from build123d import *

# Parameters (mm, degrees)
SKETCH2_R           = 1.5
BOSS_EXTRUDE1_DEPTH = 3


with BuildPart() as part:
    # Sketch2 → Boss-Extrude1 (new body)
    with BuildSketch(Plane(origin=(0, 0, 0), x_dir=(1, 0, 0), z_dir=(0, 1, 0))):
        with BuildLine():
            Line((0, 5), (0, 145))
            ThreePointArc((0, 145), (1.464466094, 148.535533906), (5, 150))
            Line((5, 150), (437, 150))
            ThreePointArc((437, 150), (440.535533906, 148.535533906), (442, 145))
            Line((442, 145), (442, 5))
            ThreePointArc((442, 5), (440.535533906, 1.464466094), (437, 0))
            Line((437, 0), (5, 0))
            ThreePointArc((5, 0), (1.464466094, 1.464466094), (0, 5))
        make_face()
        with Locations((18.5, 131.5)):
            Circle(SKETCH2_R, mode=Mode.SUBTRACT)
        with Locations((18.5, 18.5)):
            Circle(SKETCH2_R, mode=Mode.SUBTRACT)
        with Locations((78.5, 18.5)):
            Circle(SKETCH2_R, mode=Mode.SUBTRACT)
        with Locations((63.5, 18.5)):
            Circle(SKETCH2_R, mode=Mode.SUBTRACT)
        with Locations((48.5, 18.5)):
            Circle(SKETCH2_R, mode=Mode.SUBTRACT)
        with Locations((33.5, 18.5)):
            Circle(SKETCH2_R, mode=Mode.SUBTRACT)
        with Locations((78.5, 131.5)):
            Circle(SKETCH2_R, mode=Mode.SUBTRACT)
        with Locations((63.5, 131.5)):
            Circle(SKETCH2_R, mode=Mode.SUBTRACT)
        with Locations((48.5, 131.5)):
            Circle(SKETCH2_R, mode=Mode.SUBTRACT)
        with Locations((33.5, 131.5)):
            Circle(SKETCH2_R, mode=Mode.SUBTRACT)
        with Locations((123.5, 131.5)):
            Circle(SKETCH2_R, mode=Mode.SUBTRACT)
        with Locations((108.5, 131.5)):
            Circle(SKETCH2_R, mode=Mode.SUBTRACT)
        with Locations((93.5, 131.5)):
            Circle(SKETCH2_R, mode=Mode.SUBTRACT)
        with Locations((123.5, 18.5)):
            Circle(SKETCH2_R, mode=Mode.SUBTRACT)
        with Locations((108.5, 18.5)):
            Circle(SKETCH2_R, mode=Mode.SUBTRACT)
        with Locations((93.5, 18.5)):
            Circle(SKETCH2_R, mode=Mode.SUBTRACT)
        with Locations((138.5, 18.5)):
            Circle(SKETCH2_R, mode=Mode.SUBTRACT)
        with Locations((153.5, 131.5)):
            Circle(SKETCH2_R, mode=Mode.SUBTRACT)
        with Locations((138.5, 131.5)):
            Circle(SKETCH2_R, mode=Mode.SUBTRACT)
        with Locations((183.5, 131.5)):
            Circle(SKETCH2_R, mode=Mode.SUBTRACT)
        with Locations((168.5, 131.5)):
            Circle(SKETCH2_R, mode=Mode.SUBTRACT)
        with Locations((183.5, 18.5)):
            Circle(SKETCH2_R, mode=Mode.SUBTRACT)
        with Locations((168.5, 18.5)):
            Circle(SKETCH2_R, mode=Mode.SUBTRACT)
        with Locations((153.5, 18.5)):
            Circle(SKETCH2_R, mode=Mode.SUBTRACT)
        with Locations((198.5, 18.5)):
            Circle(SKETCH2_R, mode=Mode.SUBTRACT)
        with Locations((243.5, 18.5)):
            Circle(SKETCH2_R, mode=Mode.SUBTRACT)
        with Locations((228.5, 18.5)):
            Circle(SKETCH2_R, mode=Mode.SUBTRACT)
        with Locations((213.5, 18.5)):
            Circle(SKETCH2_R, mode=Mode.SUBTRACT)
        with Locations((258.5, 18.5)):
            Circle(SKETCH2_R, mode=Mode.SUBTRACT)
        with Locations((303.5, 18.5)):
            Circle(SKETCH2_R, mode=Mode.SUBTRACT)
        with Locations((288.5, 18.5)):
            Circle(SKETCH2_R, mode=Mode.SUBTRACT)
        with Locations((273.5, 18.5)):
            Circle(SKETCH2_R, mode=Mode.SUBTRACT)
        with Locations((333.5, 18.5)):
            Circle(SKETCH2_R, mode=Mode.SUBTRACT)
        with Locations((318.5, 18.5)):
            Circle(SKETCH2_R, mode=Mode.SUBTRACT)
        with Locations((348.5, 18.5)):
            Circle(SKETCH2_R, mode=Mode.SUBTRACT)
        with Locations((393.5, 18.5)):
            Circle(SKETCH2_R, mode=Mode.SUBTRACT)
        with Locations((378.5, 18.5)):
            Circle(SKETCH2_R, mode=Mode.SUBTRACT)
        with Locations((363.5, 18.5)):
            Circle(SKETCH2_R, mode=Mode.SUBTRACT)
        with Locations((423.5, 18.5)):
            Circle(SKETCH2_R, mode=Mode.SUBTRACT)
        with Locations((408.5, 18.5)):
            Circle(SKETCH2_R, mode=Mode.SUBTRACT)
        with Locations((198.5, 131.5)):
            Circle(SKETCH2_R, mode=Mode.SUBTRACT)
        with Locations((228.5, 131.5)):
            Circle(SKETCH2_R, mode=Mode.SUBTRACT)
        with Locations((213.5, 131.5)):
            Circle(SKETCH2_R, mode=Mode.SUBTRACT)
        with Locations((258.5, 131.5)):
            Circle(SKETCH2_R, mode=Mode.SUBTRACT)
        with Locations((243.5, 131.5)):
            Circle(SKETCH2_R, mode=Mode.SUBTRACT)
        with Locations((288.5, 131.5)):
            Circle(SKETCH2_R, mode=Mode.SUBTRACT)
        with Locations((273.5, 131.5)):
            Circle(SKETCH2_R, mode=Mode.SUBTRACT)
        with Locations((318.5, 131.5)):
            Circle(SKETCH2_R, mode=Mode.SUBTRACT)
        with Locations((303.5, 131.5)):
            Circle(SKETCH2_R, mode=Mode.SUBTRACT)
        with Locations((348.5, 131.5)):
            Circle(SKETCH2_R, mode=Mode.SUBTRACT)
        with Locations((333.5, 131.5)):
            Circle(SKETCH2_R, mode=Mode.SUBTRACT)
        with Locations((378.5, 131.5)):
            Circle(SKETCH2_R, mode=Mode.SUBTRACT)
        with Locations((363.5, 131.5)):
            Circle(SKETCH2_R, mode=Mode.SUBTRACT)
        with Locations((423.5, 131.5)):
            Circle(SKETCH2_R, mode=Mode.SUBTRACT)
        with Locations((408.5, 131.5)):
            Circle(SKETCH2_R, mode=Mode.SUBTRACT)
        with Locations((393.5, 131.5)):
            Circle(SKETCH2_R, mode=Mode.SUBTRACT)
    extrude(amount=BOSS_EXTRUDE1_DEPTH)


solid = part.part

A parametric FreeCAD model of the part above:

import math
import FreeCAD as App
import Part
import Sketcher

V = App.Vector
Q = App.Units.Quantity

doc = App.newDocument("Part")
body = doc.addObject("PartDesign::Body", "Body")

sketch1 = body.newObject("Sketcher::SketchObject", "Sketch")
sketch1.AttachmentSupport = (doc.getObject("XZ_Plane"), [""])
sketch1.MapMode = "FlatFace"
sketch1.addGeometry([
    Part.LineSegment(V(0, -145, 0), V(0, -5, 0)),
    Part.ArcOfCircle(Part.Circle(V(5, -5, 0), V(0, 0, 1), 5), math.radians(90), math.radians(180)),
    Part.LineSegment(V(5, 0, 0), V(437, 0, 0)),
    Part.ArcOfCircle(Part.Circle(V(437, -5, 0), V(0, 0, 1), 5), math.radians(0), math.radians(90)),
    Part.LineSegment(V(442, -5, 0), V(442, -145, 0)),
    Part.ArcOfCircle(Part.Circle(V(437, -145, 0), V(0, 0, 1), 5), math.radians(-90), math.radians(0)),
    Part.LineSegment(V(437, -150, 0), V(5, -150, 0)),
    Part.ArcOfCircle(Part.Circle(V(5, -145, 0), V(0, 0, 1), 5), math.radians(180), math.radians(270)),
    Part.Circle(V(423.5, -18.5, 0), V(0, 0, 1), 1.5),
    Part.Circle(V(408.5, -18.5, 0), V(0, 0, 1), 1.5),
    Part.Circle(V(393.5, -18.5, 0), V(0, 0, 1), 1.5),
    Part.Circle(V(378.5, -18.5, 0), V(0, 0, 1), 1.5),
    Part.Circle(V(363.5, -18.5, 0), V(0, 0, 1), 1.5),
    Part.Circle(V(348.5, -18.5, 0), V(0, 0, 1), 1.5),
    Part.Circle(V(333.5, -18.5, 0), V(0, 0, 1), 1.5),
    Part.Circle(V(318.5, -18.5, 0), V(0, 0, 1), 1.5),
    Part.Circle(V(303.5, -18.5, 0), V(0, 0, 1), 1.5),
    Part.Circle(V(288.5, -18.5, 0), V(0, 0, 1), 1.5),
    Part.Circle(V(273.5, -18.5, 0), V(0, 0, 1), 1.5),
    Part.Circle(V(258.5, -18.5, 0), V(0, 0, 1), 1.5),
    Part.Circle(V(243.5, -18.5, 0), V(0, 0, 1), 1.5),
    Part.Circle(V(228.5, -18.5, 0), V(0, 0, 1), 1.5),
    Part.Circle(V(213.5, -18.5, 0), V(0, 0, 1), 1.5),
    Part.Circle(V(198.5, -18.5, 0), V(0, 0, 1), 1.5),
    Part.Circle(V(183.5, -18.5, 0), V(0, 0, 1), 1.5),
    Part.Circle(V(168.5, -18.5, 0), V(0, 0, 1), 1.5),
    Part.Circle(V(153.5, -18.5, 0), V(0, 0, 1), 1.5),
    Part.Circle(V(138.5, -18.5, 0), V(0, 0, 1), 1.5),
    Part.Circle(V(123.5, -18.5, 0), V(0, 0, 1), 1.5),
    Part.Circle(V(108.5, -18.5, 0), V(0, 0, 1), 1.5),
    Part.Circle(V(93.5, -18.5, 0), V(0, 0, 1), 1.5),
    Part.Circle(V(78.5, -18.5, 0), V(0, 0, 1), 1.5),
    Part.Circle(V(63.5, -18.5, 0), V(0, 0, 1), 1.5),
    Part.Circle(V(48.5, -18.5, 0), V(0, 0, 1), 1.5),
    Part.Circle(V(33.5, -18.5, 0), V(0, 0, 1), 1.5),
    Part.Circle(V(18.5, -18.5, 0), V(0, 0, 1), 1.5),
    Part.Circle(V(423.5, -131.5, 0), V(0, 0, 1), 1.5),
    Part.Circle(V(408.5, -131.5, 0), V(0, 0, 1), 1.5),
    Part.Circle(V(393.5, -131.5, 0), V(0, 0, 1), 1.5),
    Part.Circle(V(378.5, -131.5, 0), V(0, 0, 1), 1.5),
    Part.Circle(V(363.5, -131.5, 0), V(0, 0, 1), 1.5),
    Part.Circle(V(348.5, -131.5, 0), V(0, 0, 1), 1.5),
    Part.Circle(V(333.5, -131.5, 0), V(0, 0, 1), 1.5),
    Part.Circle(V(318.5, -131.5, 0), V(0, 0, 1), 1.5),
    Part.Circle(V(303.5, -131.5, 0), V(0, 0, 1), 1.5),
    Part.Circle(V(288.5, -131.5, 0), V(0, 0, 1), 1.5),
    Part.Circle(V(273.5, -131.5, 0), V(0, 0, 1), 1.5),
    Part.Circle(V(258.5, -131.5, 0), V(0, 0, 1), 1.5),
    Part.Circle(V(243.5, -131.5, 0), V(0, 0, 1), 1.5),
    Part.Circle(V(228.5, -131.5, 0), V(0, 0, 1), 1.5),
    Part.Circle(V(213.5, -131.5, 0), V(0, 0, 1), 1.5),
    Part.Circle(V(198.5, -131.5, 0), V(0, 0, 1), 1.5),
    Part.Circle(V(183.5, -131.5, 0), V(0, 0, 1), 1.5),
    Part.Circle(V(168.5, -131.5, 0), V(0, 0, 1), 1.5),
    Part.Circle(V(153.5, -131.5, 0), V(0, 0, 1), 1.5),
    Part.Circle(V(138.5, -131.5, 0), V(0, 0, 1), 1.5),
    Part.Circle(V(123.5, -131.5, 0), V(0, 0, 1), 1.5),
    Part.Circle(V(108.5, -131.5, 0), V(0, 0, 1), 1.5),
    Part.Circle(V(93.5, -131.5, 0), V(0, 0, 1), 1.5),
    Part.Circle(V(78.5, -131.5, 0), V(0, 0, 1), 1.5),
    Part.Circle(V(63.5, -131.5, 0), V(0, 0, 1), 1.5),
    Part.Circle(V(48.5, -131.5, 0), V(0, 0, 1), 1.5),
    Part.Circle(V(33.5, -131.5, 0), V(0, 0, 1), 1.5),
    Part.Circle(V(18.5, -131.5, 0), V(0, 0, 1), 1.5),
], False)
sketch1.addConstraint([
    Sketcher.Constraint("Tangent", 0, 2, 1, 2),
    Sketcher.Constraint("Tangent", 1, 1, 2, 1),
    Sketcher.Constraint("Tangent", 2, 2, 3, 2),
    Sketcher.Constraint("Tangent", 3, 1, 4, 1),
    Sketcher.Constraint("Tangent", 4, 2, 5, 2),
    Sketcher.Constraint("Tangent", 5, 1, 6, 1),
    Sketcher.Constraint("Tangent", 6, 2, 7, 2),
    Sketcher.Constraint("Tangent", 7, 1, 0, 1),
    Sketcher.Constraint("Vertical", 0),
    Sketcher.Constraint("Horizontal", 2),
    Sketcher.Constraint("Vertical", 4),
    Sketcher.Constraint("Horizontal", 6),
    Sketcher.Constraint("Equal", 1, 3),
    Sketcher.Constraint("Equal", 3, 5),
    Sketcher.Constraint("Equal", 5, 7),
    Sketcher.Constraint("Equal", 8, 9),
    Sketcher.Constraint("Equal", 9, 10),
    Sketcher.Constraint("Equal", 10, 11),
    Sketcher.Constraint("Equal", 11, 12),
    Sketcher.Constraint("Equal", 12, 13),
    Sketcher.Constraint("Equal", 13, 14),
    Sketcher.Constraint("Equal", 14, 15),
    Sketcher.Constraint("Equal", 15, 16),
    Sketcher.Constraint("Equal", 16, 17),
    Sketcher.Constraint("Equal", 17, 18),
    Sketcher.Constraint("Equal", 18, 19),
    Sketcher.Constraint("Equal", 19, 20),
    Sketcher.Constraint("Equal", 20, 21),
    Sketcher.Constraint("Equal", 21, 22),
    Sketcher.Constraint("Equal", 22, 23),
    Sketcher.Constraint("Equal", 23, 24),
    Sketcher.Constraint("Equal", 24, 25),
    Sketcher.Constraint("Equal", 25, 26),
    Sketcher.Constraint("Equal", 26, 27),
    Sketcher.Constraint("Equal", 27, 28),
    Sketcher.Constraint("Equal", 28, 29),
    Sketcher.Constraint("Equal", 29, 30),
    Sketcher.Constraint("Equal", 30, 31),
    Sketcher.Constraint("Equal", 31, 32),
    Sketcher.Constraint("Equal", 32, 33),
    Sketcher.Constraint("Equal", 33, 34),
    Sketcher.Constraint("Equal", 34, 35),
    Sketcher.Constraint("Equal", 35, 36),
    Sketcher.Constraint("Equal", 36, 37),
    Sketcher.Constraint("Equal", 37, 38),
    Sketcher.Constraint("Equal", 38, 39),
    Sketcher.Constraint("Equal", 39, 40),
    Sketcher.Constraint("Equal", 40, 41),
    Sketcher.Constraint("Equal", 41, 42),
    Sketcher.Constraint("Equal", 42, 43),
    Sketcher.Constraint("Equal", 43, 44),
    Sketcher.Constraint("Equal", 44, 45),
    Sketcher.Constraint("Equal", 45, 46),
    Sketcher.Constraint("Equal", 46, 47),
    Sketcher.Constraint("Equal", 47, 48),
    Sketcher.Constraint("Equal", 48, 49),
    Sketcher.Constraint("Equal", 49, 50),
    Sketcher.Constraint("Equal", 50, 51),
    Sketcher.Constraint("Equal", 51, 52),
    Sketcher.Constraint("Equal", 52, 53),
    Sketcher.Constraint("Equal", 53, 54),
    Sketcher.Constraint("Equal", 54, 55),
    Sketcher.Constraint("Equal", 55, 56),
    Sketcher.Constraint("Equal", 56, 57),
    Sketcher.Constraint("Equal", 57, 58),
    Sketcher.Constraint("Equal", 58, 59),
    Sketcher.Constraint("Equal", 59, 60),
    Sketcher.Constraint("Equal", 60, 61),
    Sketcher.Constraint("Equal", 61, 62),
    Sketcher.Constraint("Equal", 62, 63),
    Sketcher.Constraint("PointOnObject", 0, 2, -2),
    Sketcher.Constraint("PointOnObject", 1, 1, -1),
    Sketcher.Constraint("Horizontal", 8, 3, 9, 3),
    Sketcher.Constraint("Horizontal", 9, 3, 10, 3),
    Sketcher.Constraint("Horizontal", 10, 3, 11, 3),
    Sketcher.Constraint("Horizontal", 11, 3, 12, 3),
    Sketcher.Constraint("Horizontal", 12, 3, 13, 3),
    Sketcher.Constraint("Horizontal", 13, 3, 14, 3),
    Sketcher.Constraint("Horizontal", 14, 3, 15, 3),
    Sketcher.Constraint("Horizontal", 15, 3, 16, 3),
    Sketcher.Constraint("Horizontal", 16, 3, 17, 3),
    Sketcher.Constraint("Horizontal", 17, 3, 18, 3),
    Sketcher.Constraint("Horizontal", 18, 3, 19, 3),
    Sketcher.Constraint("Horizontal", 19, 3, 20, 3),
    Sketcher.Constraint("Horizontal", 20, 3, 21, 3),
    Sketcher.Constraint("Horizontal", 21, 3, 22, 3),
    Sketcher.Constraint("Horizontal", 22, 3, 23, 3),
    Sketcher.Constraint("Horizontal", 23, 3, 24, 3),
    Sketcher.Constraint("Horizontal", 24, 3, 25, 3),
    Sketcher.Constraint("Horizontal", 25, 3, 26, 3),
    Sketcher.Constraint("Horizontal", 26, 3, 27, 3),
    Sketcher.Constraint("Horizontal", 27, 3, 28, 3),
    Sketcher.Constraint("Horizontal", 28, 3, 29, 3),
    Sketcher.Constraint("Horizontal", 29, 3, 30, 3),
    Sketcher.Constraint("Horizontal", 30, 3, 31, 3),
    Sketcher.Constraint("Horizontal", 31, 3, 32, 3),
    Sketcher.Constraint("Horizontal", 32, 3, 33, 3),
    Sketcher.Constraint("Horizontal", 33, 3, 34, 3),
    Sketcher.Constraint("Horizontal", 34, 3, 35, 3),
    Sketcher.Constraint("Horizontal", 36, 3, 37, 3),
    Sketcher.Constraint("Horizontal", 37, 3, 38, 3),
    Sketcher.Constraint("Horizontal", 38, 3, 39, 3),
    Sketcher.Constraint("Horizontal", 39, 3, 40, 3),
    Sketcher.Constraint("Horizontal", 40, 3, 41, 3),
    Sketcher.Constraint("Horizontal", 41, 3, 42, 3),
    Sketcher.Constraint("Horizontal", 42, 3, 43, 3),
    Sketcher.Constraint("Horizontal", 43, 3, 44, 3),
    Sketcher.Constraint("Horizontal", 44, 3, 45, 3),
    Sketcher.Constraint("Horizontal", 45, 3, 46, 3),
    Sketcher.Constraint("Horizontal", 46, 3, 47, 3),
    Sketcher.Constraint("Horizontal", 47, 3, 48, 3),
    Sketcher.Constraint("Horizontal", 48, 3, 49, 3),
    Sketcher.Constraint("Horizontal", 49, 3, 50, 3),
    Sketcher.Constraint("Horizontal", 50, 3, 51, 3),
    Sketcher.Constraint("Horizontal", 51, 3, 52, 3),
    Sketcher.Constraint("Horizontal", 52, 3, 53, 3),
    Sketcher.Constraint("Horizontal", 53, 3, 54, 3),
    Sketcher.Constraint("Horizontal", 54, 3, 55, 3),
    Sketcher.Constraint("Horizontal", 55, 3, 56, 3),
    Sketcher.Constraint("Horizontal", 56, 3, 57, 3),
    Sketcher.Constraint("Horizontal", 57, 3, 58, 3),
    Sketcher.Constraint("Horizontal", 58, 3, 59, 3),
    Sketcher.Constraint("Horizontal", 59, 3, 60, 3),
    Sketcher.Constraint("Horizontal", 60, 3, 61, 3),
    Sketcher.Constraint("Horizontal", 61, 3, 62, 3),
    Sketcher.Constraint("Horizontal", 62, 3, 63, 3),
    Sketcher.Constraint("Vertical", 8, 3, 36, 3),
    Sketcher.Constraint("Vertical", 9, 3, 37, 3),
    Sketcher.Constraint("Vertical", 10, 3, 38, 3),
    Sketcher.Constraint("Vertical", 11, 3, 39, 3),
    Sketcher.Constraint("Vertical", 12, 3, 40, 3),
    Sketcher.Constraint("Vertical", 13, 3, 41, 3),
    Sketcher.Constraint("Vertical", 14, 3, 42, 3),
    Sketcher.Constraint("Vertical", 15, 3, 43, 3),
    Sketcher.Constraint("Vertical", 16, 3, 44, 3),
    Sketcher.Constraint("Vertical", 17, 3, 45, 3),
    Sketcher.Constraint("Vertical", 18, 3, 46, 3),
    Sketcher.Constraint("Vertical", 19, 3, 47, 3),
    Sketcher.Constraint("Vertical", 20, 3, 48, 3),
    Sketcher.Constraint("Vertical", 21, 3, 49, 3),
    Sketcher.Constraint("Vertical", 22, 3, 50, 3),
    Sketcher.Constraint("Vertical", 23, 3, 51, 3),
    Sketcher.Constraint("Vertical", 24, 3, 52, 3),
    Sketcher.Constraint("Vertical", 25, 3, 53, 3),
    Sketcher.Constraint("Vertical", 26, 3, 54, 3),
    Sketcher.Constraint("Vertical", 27, 3, 55, 3),
    Sketcher.Constraint("Vertical", 28, 3, 56, 3),
    Sketcher.Constraint("Vertical", 29, 3, 57, 3),
    Sketcher.Constraint("Vertical", 30, 3, 58, 3),
    Sketcher.Constraint("Vertical", 31, 3, 59, 3),
    Sketcher.Constraint("Vertical", 32, 3, 60, 3),
    Sketcher.Constraint("Vertical", 33, 3, 61, 3),
    Sketcher.Constraint("Vertical", 34, 3, 62, 3),
    Sketcher.Constraint("Vertical", 35, 3, 63, 3),
    Sketcher.Constraint("Diameter", 8, Q("3 mm")),
    Sketcher.Constraint("Radius", 1, Q("5 mm")),
    Sketcher.Constraint("DistanceX", 2, 1, 2, 2, Q("432 mm")),
    Sketcher.Constraint("DistanceY", 0, 1, 0, 2, Q("140 mm")),
    Sketcher.Constraint("DistanceX", -1, 1, 8, 3, Q("423.5 mm")),
    Sketcher.Constraint("DistanceY", 8, 3, -1, 1, Q("18.5 mm")),
    Sketcher.Constraint("DistanceX", -1, 1, 9, 3, Q("408.5 mm")),
    Sketcher.Constraint("DistanceX", -1, 1, 10, 3, Q("393.5 mm")),
    Sketcher.Constraint("DistanceX", -1, 1, 11, 3, Q("378.5 mm")),
    Sketcher.Constraint("DistanceX", -1, 1, 12, 3, Q("363.5 mm")),
    Sketcher.Constraint("DistanceX", -1, 1, 13, 3, Q("348.5 mm")),
    Sketcher.Constraint("DistanceX", -1, 1, 14, 3, Q("333.5 mm")),
    Sketcher.Constraint("DistanceX", -1, 1, 15, 3, Q("318.5 mm")),
    Sketcher.Constraint("DistanceX", -1, 1, 16, 3, Q("303.5 mm")),
    Sketcher.Constraint("DistanceX", -1, 1, 17, 3, Q("288.5 mm")),
    Sketcher.Constraint("DistanceX", -1, 1, 18, 3, Q("273.5 mm")),
    Sketcher.Constraint("DistanceX", -1, 1, 19, 3, Q("258.5 mm")),
    Sketcher.Constraint("DistanceX", -1, 1, 20, 3, Q("243.5 mm")),
    Sketcher.Constraint("DistanceX", -1, 1, 21, 3, Q("228.5 mm")),
    Sketcher.Constraint("DistanceX", -1, 1, 22, 3, Q("213.5 mm")),
    Sketcher.Constraint("DistanceX", -1, 1, 23, 3, Q("198.5 mm")),
    Sketcher.Constraint("DistanceX", -1, 1, 24, 3, Q("183.5 mm")),
    Sketcher.Constraint("DistanceX", -1, 1, 25, 3, Q("168.5 mm")),
    Sketcher.Constraint("DistanceX", -1, 1, 26, 3, Q("153.5 mm")),
    Sketcher.Constraint("DistanceX", -1, 1, 27, 3, Q("138.5 mm")),
    Sketcher.Constraint("DistanceX", -1, 1, 28, 3, Q("123.5 mm")),
    Sketcher.Constraint("DistanceX", -1, 1, 29, 3, Q("108.5 mm")),
    Sketcher.Constraint("DistanceX", -1, 1, 30, 3, Q("93.5 mm")),
    Sketcher.Constraint("DistanceX", -1, 1, 31, 3, Q("78.5 mm")),
    Sketcher.Constraint("DistanceX", -1, 1, 32, 3, Q("63.5 mm")),
    Sketcher.Constraint("DistanceX", -1, 1, 33, 3, Q("48.5 mm")),
    Sketcher.Constraint("DistanceX", -1, 1, 34, 3, Q("33.5 mm")),
    Sketcher.Constraint("DistanceX", -1, 1, 35, 3, Q("18.5 mm")),
    Sketcher.Constraint("DistanceY", 36, 3, -1, 1, Q("131.5 mm")),
])
pad1 = body.newObject("PartDesign::Pad", "Pad")
pad1.Profile = sketch1
pad1.Length = 3
pad1.Reversed = True

doc.recompute()
